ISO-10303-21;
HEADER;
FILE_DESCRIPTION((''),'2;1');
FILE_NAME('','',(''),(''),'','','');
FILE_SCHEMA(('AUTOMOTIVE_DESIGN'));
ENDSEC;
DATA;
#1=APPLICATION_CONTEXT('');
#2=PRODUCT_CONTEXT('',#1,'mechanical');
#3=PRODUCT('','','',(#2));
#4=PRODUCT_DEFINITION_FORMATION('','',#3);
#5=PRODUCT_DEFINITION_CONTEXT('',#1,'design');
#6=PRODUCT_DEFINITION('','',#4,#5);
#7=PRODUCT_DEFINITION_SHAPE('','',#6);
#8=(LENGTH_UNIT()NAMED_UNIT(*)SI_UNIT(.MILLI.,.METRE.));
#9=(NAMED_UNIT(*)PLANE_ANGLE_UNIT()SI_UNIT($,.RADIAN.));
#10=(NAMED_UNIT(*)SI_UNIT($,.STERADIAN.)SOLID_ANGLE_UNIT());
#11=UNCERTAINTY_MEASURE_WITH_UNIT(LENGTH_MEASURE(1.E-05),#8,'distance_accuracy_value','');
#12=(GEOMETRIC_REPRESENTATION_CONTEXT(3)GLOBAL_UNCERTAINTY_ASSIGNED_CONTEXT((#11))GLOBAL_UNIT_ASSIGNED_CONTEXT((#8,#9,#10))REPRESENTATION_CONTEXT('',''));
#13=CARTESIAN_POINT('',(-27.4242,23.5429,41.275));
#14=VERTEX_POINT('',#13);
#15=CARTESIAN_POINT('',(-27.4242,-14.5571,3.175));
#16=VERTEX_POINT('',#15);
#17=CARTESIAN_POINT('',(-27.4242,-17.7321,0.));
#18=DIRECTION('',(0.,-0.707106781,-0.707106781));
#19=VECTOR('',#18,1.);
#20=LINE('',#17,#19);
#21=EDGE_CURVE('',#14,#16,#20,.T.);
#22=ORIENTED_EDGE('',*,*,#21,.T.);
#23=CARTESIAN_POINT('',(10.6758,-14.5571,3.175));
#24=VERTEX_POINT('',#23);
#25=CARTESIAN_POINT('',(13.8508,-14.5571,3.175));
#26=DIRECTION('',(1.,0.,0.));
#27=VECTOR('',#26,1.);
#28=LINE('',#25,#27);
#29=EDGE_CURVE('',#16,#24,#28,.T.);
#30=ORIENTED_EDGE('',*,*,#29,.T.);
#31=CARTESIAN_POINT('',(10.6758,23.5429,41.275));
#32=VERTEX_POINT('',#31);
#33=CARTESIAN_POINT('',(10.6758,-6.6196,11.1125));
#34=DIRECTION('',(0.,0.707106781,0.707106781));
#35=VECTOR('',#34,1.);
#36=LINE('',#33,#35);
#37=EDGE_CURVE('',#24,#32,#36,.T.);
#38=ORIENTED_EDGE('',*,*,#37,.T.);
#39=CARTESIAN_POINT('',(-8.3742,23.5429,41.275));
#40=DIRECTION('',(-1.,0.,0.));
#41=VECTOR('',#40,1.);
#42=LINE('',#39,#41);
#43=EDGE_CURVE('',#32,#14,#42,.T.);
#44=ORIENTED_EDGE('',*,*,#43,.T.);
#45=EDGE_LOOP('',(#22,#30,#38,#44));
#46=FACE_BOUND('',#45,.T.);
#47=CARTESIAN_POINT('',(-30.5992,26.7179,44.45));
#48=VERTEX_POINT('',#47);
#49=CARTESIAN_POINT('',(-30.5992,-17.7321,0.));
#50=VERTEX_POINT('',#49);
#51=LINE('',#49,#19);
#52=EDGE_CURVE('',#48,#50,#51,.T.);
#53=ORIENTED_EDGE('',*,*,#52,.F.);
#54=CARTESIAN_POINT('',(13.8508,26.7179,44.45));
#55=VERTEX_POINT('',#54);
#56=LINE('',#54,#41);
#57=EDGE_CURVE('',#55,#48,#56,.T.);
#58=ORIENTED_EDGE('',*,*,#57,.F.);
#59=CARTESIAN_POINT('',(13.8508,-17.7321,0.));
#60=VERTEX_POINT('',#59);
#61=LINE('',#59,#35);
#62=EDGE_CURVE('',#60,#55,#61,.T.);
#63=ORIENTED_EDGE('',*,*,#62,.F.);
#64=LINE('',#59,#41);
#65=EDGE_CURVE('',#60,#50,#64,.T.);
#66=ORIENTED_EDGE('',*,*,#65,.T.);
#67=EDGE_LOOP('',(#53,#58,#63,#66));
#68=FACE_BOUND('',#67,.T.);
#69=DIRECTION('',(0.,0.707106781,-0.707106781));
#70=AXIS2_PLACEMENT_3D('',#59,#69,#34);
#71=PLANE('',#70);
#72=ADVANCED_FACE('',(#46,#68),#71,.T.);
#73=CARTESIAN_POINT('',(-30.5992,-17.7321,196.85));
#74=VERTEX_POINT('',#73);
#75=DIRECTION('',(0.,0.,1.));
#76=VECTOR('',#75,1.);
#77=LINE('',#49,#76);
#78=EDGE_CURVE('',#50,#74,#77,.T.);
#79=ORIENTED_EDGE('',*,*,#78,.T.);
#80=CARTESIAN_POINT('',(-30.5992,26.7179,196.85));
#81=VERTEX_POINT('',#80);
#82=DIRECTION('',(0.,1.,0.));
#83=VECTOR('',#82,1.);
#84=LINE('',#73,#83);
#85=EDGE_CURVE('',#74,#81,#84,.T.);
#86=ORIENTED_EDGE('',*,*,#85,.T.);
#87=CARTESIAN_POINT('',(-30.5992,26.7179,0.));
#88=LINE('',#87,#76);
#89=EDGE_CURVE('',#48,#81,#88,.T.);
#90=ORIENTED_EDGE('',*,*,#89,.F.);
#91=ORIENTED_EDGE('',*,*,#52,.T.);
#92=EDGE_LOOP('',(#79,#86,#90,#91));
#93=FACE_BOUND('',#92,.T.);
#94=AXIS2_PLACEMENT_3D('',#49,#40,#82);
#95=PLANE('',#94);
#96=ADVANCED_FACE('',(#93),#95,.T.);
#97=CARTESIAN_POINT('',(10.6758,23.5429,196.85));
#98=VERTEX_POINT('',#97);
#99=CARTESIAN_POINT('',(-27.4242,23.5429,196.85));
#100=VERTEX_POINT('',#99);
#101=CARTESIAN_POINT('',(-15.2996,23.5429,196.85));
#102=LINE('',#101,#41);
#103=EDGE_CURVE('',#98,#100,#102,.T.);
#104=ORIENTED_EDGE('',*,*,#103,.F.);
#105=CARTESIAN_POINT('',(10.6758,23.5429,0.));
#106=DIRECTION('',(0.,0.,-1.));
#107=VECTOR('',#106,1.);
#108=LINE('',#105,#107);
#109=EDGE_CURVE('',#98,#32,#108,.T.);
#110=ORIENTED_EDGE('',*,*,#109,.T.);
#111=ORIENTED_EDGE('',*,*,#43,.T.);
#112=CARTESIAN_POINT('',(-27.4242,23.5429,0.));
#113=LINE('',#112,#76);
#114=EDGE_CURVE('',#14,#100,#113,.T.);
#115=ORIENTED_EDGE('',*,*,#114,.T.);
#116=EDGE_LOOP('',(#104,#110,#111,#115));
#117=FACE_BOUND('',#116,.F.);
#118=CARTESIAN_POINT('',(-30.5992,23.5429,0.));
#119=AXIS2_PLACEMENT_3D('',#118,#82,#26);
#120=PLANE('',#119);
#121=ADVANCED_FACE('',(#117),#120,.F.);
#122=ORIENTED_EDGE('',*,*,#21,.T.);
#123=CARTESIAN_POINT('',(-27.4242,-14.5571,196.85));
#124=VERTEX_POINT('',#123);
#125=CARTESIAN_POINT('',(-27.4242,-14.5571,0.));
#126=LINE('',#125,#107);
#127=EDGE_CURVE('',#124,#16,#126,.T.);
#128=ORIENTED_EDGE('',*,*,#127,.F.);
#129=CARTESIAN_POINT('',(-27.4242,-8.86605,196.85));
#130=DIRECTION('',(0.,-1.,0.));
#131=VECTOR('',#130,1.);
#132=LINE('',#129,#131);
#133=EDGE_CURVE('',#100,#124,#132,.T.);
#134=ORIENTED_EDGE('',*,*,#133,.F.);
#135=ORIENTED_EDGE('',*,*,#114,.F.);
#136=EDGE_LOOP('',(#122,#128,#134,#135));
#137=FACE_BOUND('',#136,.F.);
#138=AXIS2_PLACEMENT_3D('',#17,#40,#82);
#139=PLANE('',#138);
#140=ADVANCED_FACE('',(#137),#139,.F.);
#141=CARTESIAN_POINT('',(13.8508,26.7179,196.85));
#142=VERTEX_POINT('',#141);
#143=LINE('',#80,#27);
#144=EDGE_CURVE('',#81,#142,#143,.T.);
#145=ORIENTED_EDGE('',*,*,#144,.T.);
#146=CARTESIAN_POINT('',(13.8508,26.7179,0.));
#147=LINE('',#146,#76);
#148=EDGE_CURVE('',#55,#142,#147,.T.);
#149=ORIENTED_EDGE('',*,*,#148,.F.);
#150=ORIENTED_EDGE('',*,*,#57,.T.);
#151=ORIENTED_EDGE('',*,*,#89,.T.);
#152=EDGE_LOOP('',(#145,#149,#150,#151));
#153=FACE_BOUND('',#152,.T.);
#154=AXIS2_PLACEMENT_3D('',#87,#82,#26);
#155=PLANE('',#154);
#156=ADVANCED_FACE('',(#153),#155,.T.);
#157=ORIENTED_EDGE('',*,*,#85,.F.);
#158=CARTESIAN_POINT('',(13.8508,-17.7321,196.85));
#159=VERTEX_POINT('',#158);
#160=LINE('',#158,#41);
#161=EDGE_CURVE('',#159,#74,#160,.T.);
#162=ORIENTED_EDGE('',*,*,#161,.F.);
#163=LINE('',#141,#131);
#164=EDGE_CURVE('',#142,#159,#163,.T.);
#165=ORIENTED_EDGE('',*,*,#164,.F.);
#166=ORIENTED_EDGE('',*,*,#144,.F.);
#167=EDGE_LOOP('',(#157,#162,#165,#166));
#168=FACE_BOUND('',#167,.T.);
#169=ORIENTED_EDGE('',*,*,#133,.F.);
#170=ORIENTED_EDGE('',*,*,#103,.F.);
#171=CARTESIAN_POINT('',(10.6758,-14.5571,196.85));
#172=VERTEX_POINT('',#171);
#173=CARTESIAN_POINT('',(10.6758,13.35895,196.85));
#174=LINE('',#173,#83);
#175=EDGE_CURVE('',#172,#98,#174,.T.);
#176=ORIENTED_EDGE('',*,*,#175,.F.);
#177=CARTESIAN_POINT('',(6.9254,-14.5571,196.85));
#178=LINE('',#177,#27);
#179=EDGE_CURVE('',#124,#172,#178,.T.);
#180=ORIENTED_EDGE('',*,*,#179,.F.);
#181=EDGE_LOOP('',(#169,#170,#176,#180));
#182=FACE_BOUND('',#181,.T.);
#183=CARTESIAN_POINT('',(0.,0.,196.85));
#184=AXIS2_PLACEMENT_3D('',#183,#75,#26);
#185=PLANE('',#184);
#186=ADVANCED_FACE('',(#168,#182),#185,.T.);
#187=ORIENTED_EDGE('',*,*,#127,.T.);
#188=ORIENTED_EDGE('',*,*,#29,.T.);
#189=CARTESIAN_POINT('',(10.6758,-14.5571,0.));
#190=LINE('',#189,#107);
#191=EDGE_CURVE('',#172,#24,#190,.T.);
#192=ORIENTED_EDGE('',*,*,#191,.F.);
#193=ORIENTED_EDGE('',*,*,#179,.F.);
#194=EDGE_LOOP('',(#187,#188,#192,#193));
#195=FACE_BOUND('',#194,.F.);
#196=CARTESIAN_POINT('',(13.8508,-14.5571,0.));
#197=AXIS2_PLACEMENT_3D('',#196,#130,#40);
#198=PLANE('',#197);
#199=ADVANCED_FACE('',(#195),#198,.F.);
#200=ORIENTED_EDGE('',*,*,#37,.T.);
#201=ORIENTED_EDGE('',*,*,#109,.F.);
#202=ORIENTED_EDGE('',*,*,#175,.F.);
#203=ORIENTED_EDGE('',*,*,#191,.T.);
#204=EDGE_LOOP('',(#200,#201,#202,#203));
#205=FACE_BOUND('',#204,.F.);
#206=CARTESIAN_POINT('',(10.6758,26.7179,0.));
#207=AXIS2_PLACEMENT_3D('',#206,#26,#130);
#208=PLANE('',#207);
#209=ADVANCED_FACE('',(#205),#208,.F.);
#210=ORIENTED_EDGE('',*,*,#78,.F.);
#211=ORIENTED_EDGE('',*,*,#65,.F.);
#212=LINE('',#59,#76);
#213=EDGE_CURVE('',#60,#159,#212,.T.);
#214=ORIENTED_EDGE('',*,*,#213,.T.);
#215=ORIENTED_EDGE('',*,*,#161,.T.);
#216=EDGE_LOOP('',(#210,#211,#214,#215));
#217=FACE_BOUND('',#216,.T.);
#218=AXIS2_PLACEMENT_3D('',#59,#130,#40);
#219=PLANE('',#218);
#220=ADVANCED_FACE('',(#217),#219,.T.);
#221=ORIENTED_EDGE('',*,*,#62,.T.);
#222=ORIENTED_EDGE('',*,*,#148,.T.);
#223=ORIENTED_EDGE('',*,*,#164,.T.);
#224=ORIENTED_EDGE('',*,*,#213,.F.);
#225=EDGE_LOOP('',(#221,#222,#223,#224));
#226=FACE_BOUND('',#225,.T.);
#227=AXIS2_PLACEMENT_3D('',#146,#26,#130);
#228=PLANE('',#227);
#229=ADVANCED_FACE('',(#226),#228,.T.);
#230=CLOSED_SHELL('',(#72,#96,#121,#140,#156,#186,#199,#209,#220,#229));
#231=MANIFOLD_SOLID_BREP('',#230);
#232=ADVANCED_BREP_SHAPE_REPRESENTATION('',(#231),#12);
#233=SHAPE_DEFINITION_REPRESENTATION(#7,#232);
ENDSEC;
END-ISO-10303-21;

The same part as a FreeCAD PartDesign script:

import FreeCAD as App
import Part
import Sketcher
from FreeCAD import Vector
Q = App.Units.Quantity


def faces_at(feature, points):
    """Names of the faces that lie closest to the given points."""
    faces = feature.Shape.Faces
    near = lambda p: min(range(len(faces)), key=lambda i: faces[i].distToShape(Part.Vertex(*p))[0])
    return sorted({f"Face{near(p) + 1}" for p in points})

doc = App.newDocument("Part")
body = doc.addObject("PartDesign::Body", "Body")

# Sketch on XY plane
sketch1 = body.newObject("Sketcher::SketchObject", "Sketch")
sketch1.AttachmentSupport = (doc.getObject("XY_Plane"), [""])
sketch1.MapMode = "FlatFace"
sketch1.addGeometry([
    Part.LineSegment(Vector(13.8508, 26.7179, 0), Vector(-30.5992, 26.7179, 0)),
    Part.LineSegment(Vector(-30.5992, 26.7179, 0), Vector(-30.5992, -17.7321, 0)),
    Part.LineSegment(Vector(-30.5992, -17.7321, 0), Vector(13.8508, -17.7321, 0)),
    Part.LineSegment(Vector(13.8508, -17.7321, 0), Vector(13.8508, 26.7179, 0)),
], False)
sketch1.addConstraint([
    Sketcher.Constraint("Coincident", 0, 2, 1, 1),
    Sketcher.Constraint("Coincident", 1, 2, 2, 1),
    Sketcher.Constraint("Coincident", 2, 2, 3, 1),
    Sketcher.Constraint("Coincident", 3, 2, 0, 1),
    Sketcher.Constraint("Horizontal", 0),
    Sketcher.Constraint("Vertical", 1),
    Sketcher.Constraint("Horizontal", 2),
    Sketcher.Constraint("Vertical", 3),
    Sketcher.Constraint("Equal", 2, 1),
    Sketcher.Constraint("DistanceX", 0, 2, 0, 1, Q("1.75 in")),
    Sketcher.Constraint("DistanceX", 0, 2, -1, 1, Q("1.2047 in")),
    Sketcher.Constraint("DistanceY", -1, 1, 0, 2, Q("1.0518898 in")),
])
pad1 = body.newObject("PartDesign::Pad", "Pad")
pad1.Profile = sketch1
pad1.Length = Q("7.75 in")
doc.recompute()

thickness = body.newObject("PartDesign::Thickness", "Thickness")
thickness.Base = (pad1, faces_at(pad1, [(-15.783, -2.915, 0), (-15.783, -2.915, 196.85)]))
thickness.Value = Q("0.125 in")
thickness.Reversed = True
thickness.Join = "Intersection"

# Sketch on YZ plane
sketch2 = body.newObject("Sketcher::SketchObject", "Sketch001")
sketch2.AttachmentSupport = (doc.getObject("YZ_Plane"), [""])
sketch2.MapMode = "FlatFace"
sketch2.AttachmentOffset = App.Placement(Vector(0, 0, 0.5453071 * 25.4), App.Rotation())
sketch2.addGeometry([
    Part.LineSegment(Vector(-17.7321, 0, 0), Vector(26.7179, 0, 0)),
    Part.LineSegment(Vector(26.7179, 0, 0), Vector(26.7179, 44.45, 0)),
    Part.LineSegment(Vector(26.7179, 44.45, 0), Vector(-17.7321, 0, 0)),
], False)
sketch2.addConstraint([
    Sketcher.Constraint("Coincident", 0, 2, 1, 1),
    Sketcher.Constraint("Coincident", 1, 2, 2, 1),
    Sketcher.Constraint("Coincident", 2, 2, 0, 1),
    Sketcher.Constraint("Horizontal", 0),
    Sketcher.Constraint("Vertical", 1),
    Sketcher.Constraint("PointOnObject", 0, 2, -1),
    Sketcher.Constraint("Equal", 0, 1),
    Sketcher.Constraint("DistanceX", 0, 1, 0, 2, Q("1.75 in")),
    Sketcher.Constraint("DistanceX", -1, 1, 0, 2, Q("1.0518898 in")),
])
pocket1 = body.newObject("PartDesign::Pocket", "Pocket")
pocket1.Profile = sketch2
pocket1.Type = "ThroughAll"

doc.recompute()
